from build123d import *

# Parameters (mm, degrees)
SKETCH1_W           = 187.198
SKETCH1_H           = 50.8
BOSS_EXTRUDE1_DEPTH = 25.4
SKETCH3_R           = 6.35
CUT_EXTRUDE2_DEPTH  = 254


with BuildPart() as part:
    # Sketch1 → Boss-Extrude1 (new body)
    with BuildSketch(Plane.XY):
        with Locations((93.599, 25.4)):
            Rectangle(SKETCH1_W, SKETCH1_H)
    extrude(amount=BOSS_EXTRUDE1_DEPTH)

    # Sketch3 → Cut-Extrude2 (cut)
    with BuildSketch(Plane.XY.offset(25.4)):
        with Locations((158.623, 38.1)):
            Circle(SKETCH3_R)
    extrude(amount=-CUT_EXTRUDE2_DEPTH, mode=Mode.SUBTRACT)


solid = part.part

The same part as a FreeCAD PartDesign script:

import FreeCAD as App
import Part
import Sketcher
from FreeCAD import Vector
Q = App.Units.Quantity


def add_polygon(sketch, points):
    """Adds a closed chain of lines whose ends are joined by coincident constraints."""
    first, n = sketch.GeometryCount, len(points)
    for a, b in zip(points, points[1:] + points[:1]):
        sketch.addGeometry(Part.LineSegment(App.Vector(*a, 0), App.Vector(*b, 0)), False)
    for i in range(n):
        sketch.addConstraint(Sketcher.Constraint("Coincident", first + i, 2, first + (i + 1) % n, 1))

doc = App.newDocument("Part")
body = doc.addObject("PartDesign::Body", "Body")

# Sketch on XY plane
sketch1 = doc.addObject("Sketcher::SketchObject", "Sketch")
body.addObject(sketch1)
sketch1.AttachmentSupport = (doc.XY_Plane, [""])
sketch1.MapMode = "FlatFace"
add_polygon(sketch1, [(0, 51), (0, 0), (187, 0), (187, 51)])  # lines 0-3
sketch1.addConstraint(Sketcher.Constraint("Vertical", 0))
sketch1.addConstraint(Sketcher.Constraint("Horizontal", 1))
sketch1.addConstraint(Sketcher.Constraint("Vertical", 2))
sketch1.addConstraint(Sketcher.Constraint("Horizontal", 3))
sketch1.addConstraint(Sketcher.Constraint("Coincident", 0, 2, -1, 1))
sketch1.addConstraint(Sketcher.Constraint("DistanceY", 0, 2, 0, 1, Q("2 in")))
sketch1.addConstraint(Sketcher.Constraint("DistanceX", 1, 1, 1, 2, Q("7.37 in")))
pad1 = doc.addObject("PartDesign::Pad", "Pad")
body.addObject(pad1)
pad1.Profile = sketch1
pad1.Length = Q("1 in")

# Sketch on XY plane
sketch2 = doc.addObject("Sketcher::SketchObject", "Sketch001")
body.addObject(sketch2)
sketch2.AttachmentSupport = (doc.XY_Plane, [""])
sketch2.MapMode = "FlatFace"
sketch2.AttachmentOffset = App.Placement(Vector(0, 0, 1 * 25.4), App.Rotation())
sketch2.addGeometry(Part.Circle(Vector(159, 38, 0), Vector(0, 0, 1), 6), False)
sketch2.addConstraint(Sketcher.Constraint("Diameter", 0, Q("0.5 in")))
sketch2.addConstraint(Sketcher.Constraint("DistanceY", -1, 1, 0, 3, Q("1.5 in")))
sketch2.addConstraint(Sketcher.Constraint("DistanceX", -1, 1, 0, 3, Q("6.245 in")))
pocket1 = doc.addObject("PartDesign::Pocket", "Pocket")
body.addObject(pocket1)
pocket1.Profile = sketch2
pocket1.Length = Q("10 in")

doc.recompute()
